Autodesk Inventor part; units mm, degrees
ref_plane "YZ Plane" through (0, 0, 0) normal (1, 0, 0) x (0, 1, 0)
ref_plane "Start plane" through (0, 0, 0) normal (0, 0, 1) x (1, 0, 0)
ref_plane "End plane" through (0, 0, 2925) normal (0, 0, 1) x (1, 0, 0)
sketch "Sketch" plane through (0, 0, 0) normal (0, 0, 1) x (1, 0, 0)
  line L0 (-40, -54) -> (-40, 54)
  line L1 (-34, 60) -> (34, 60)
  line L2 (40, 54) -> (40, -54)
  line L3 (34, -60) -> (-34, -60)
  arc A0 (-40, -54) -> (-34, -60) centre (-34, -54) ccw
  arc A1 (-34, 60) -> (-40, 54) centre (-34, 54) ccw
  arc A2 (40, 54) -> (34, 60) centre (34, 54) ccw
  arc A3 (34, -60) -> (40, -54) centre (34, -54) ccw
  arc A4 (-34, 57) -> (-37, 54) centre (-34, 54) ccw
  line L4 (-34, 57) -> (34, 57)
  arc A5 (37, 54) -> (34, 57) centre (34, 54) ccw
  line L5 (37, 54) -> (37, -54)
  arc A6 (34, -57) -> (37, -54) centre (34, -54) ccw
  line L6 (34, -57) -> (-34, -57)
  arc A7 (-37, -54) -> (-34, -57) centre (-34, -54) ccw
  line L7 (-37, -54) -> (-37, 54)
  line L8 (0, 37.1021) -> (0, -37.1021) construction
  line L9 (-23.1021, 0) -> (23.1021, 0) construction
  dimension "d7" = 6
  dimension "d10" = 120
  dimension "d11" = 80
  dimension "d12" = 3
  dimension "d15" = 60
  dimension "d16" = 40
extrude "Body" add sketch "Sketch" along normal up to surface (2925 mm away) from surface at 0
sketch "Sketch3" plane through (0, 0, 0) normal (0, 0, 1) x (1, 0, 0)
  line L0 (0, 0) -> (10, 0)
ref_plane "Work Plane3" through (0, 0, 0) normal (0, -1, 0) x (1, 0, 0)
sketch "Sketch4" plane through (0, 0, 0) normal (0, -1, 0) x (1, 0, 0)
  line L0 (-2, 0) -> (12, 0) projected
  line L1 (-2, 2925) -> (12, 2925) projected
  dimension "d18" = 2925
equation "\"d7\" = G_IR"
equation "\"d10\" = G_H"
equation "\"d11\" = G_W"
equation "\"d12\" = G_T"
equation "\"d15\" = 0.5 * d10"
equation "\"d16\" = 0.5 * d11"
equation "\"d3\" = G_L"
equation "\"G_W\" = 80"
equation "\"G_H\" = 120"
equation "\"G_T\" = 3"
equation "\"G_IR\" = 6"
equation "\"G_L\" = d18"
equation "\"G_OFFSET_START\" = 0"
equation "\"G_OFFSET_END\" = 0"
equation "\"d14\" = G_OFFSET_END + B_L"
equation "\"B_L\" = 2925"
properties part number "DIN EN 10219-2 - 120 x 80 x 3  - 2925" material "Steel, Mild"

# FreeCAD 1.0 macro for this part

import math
import FreeCAD as App
import Part
import Sketcher

V = App.Vector
Q = App.Units.Quantity

doc = App.newDocument("Part")
params = doc.addObject("Spreadsheet::Sheet", "Params")
for row, (alias, value) in enumerate([
    ("sketch1_radius", "6 mm"),
    ("sketch1_radius2", "3 mm"),
    ("pad1_length", "2925 mm"),
], start=1):
    params.set(f"A{row}", alias)
    params.set(f"B{row}", "=" + value)
    params.setAlias(f"B{row}", alias)

body = doc.addObject("PartDesign::Body", "Body")

# Sketch on XY plane
sketch1 = body.newObject("Sketcher::SketchObject", "Sketch")
sketch1.AttachmentSupport = (doc.getObject("XY_Plane"), [""])
sketch1.MapMode = "FlatFace"
sketch1.addGeometry(Part.LineSegment(V(-40, 54, 0), V(-40, -54, 0)), False)
sketch1.addGeometry(Part.ArcOfCircle(Part.Circle(V(-34, -54, 0), V(0, 0, 1), 6), math.radians(180), math.radians(270)), False)
sketch1.addGeometry(Part.LineSegment(V(-34, -60, 0), V(34, -60, 0)), False)
sketch1.addGeometry(Part.ArcOfCircle(Part.Circle(V(34, -54, 0), V(0, 0, 1), 6), math.radians(-90), math.radians(0)), False)
sketch1.addGeometry(Part.LineSegment(V(40, -54, 0), V(40, 54, 0)), False)
sketch1.addGeometry(Part.ArcOfCircle(Part.Circle(V(34, 54, 0), V(0, 0, 1), 6), math.radians(0), math.radians(90)), False)
sketch1.addGeometry(Part.LineSegment(V(34, 60, 0), V(-34, 60, 0)), False)
sketch1.addGeometry(Part.ArcOfCircle(Part.Circle(V(-34, 54, 0), V(0, 0, 1), 6), math.radians(90), math.radians(180)), False)
sketch1.addGeometry(Part.ArcOfCircle(Part.Circle(V(-34, 54, 0), V(0, 0, 1), 3), math.radians(90), math.radians(180)), False)
sketch1.addGeometry(Part.LineSegment(V(-34, 57, 0), V(34, 57, 0)), False)
sketch1.addGeometry(Part.ArcOfCircle(Part.Circle(V(34, 54, 0), V(0, 0, 1), 3), math.radians(0), math.radians(90)), False)
sketch1.addGeometry(Part.LineSegment(V(37, 54, 0), V(37, -54, 0)), False)
sketch1.addGeometry(Part.ArcOfCircle(Part.Circle(V(34, -54, 0), V(0, 0, 1), 3), math.radians(-90), math.radians(0)), False)
sketch1.addGeometry(Part.LineSegment(V(34, -57, 0), V(-34, -57, 0)), False)
sketch1.addGeometry(Part.ArcOfCircle(Part.Circle(V(-34, -54, 0), V(0, 0, 1), 3), math.radians(180), math.radians(270)), False)
sketch1.addGeometry(Part.LineSegment(V(-37, -54, 0), V(-37, 54, 0)), False)
sketch1.addConstraint(Sketcher.Constraint("Tangent", 0, 2, 1, 1))
sketch1.addConstraint(Sketcher.Constraint("Tangent", 1, 2, 2, 1))
sketch1.addConstraint(Sketcher.Constraint("Tangent", 2, 2, 3, 1))
sketch1.addConstraint(Sketcher.Constraint("Tangent", 3, 2, 4, 1))
sketch1.addConstraint(Sketcher.Constraint("Tangent", 4, 2, 5, 1))
sketch1.addConstraint(Sketcher.Constraint("Tangent", 5, 2, 6, 1))
sketch1.addConstraint(Sketcher.Constraint("Tangent", 6, 2, 7, 1))
sketch1.addConstraint(Sketcher.Constraint("Tangent", 7, 2, 0, 1))
sketch1.addConstraint(Sketcher.Constraint("Tangent", 8, 1, 9, 1))
sketch1.addConstraint(Sketcher.Constraint("Tangent", 9, 2, 10, 2))
sketch1.addConstraint(Sketcher.Constraint("Tangent", 10, 1, 11, 1))
sketch1.addConstraint(Sketcher.Constraint("Tangent", 11, 2, 12, 2))
sketch1.addConstraint(Sketcher.Constraint("Tangent", 12, 1, 13, 1))
sketch1.addConstraint(Sketcher.Constraint("Tangent", 13, 2, 14, 2))
sketch1.addConstraint(Sketcher.Constraint("Tangent", 14, 1, 15, 1))
sketch1.addConstraint(Sketcher.Constraint("Tangent", 15, 2, 8, 2))
sketch1.addConstraint(Sketcher.Constraint("Vertical", 0))
sketch1.addConstraint(Sketcher.Constraint("Horizontal", 2))
sketch1.addConstraint(Sketcher.Constraint("Vertical", 4))
sketch1.addConstraint(Sketcher.Constraint("Horizontal", 6))
sketch1.addConstraint(Sketcher.Constraint("Horizontal", 9))
sketch1.addConstraint(Sketcher.Constraint("Vertical", 11))
sketch1.addConstraint(Sketcher.Constraint("Horizontal", 13))
sketch1.addConstraint(Sketcher.Constraint("Vertical", 15))
sketch1.addConstraint(Sketcher.Constraint("Coincident", 8, 3, 7, 3))
sketch1.addConstraint(Sketcher.Constraint("Coincident", 10, 3, 5, 3))
sketch1.addConstraint(Sketcher.Constraint("Coincident", 12, 3, 3, 3))
sketch1.addConstraint(Sketcher.Constraint("Equal", 1, 3))
sketch1.addConstraint(Sketcher.Constraint("Equal", 3, 5))
sketch1.addConstraint(Sketcher.Constraint("Equal", 5, 7))
sketch1.addConstraint(Sketcher.Constraint("Equal", 12, 14))
sketch1.addConstraint(Sketcher.Constraint("Symmetric", 1, 3, 5, 3, -1, 1))
sketch1.addConstraint(Sketcher.Constraint("Radius", 1, Q("6 mm")))
sketch1.addConstraint(Sketcher.Constraint("Radius", 8, Q("3 mm")))
sketch1.addConstraint(Sketcher.Constraint("DistanceX", 0, 2, -1, 1, Q("40 mm")))
sketch1.addConstraint(Sketcher.Constraint("DistanceY", 1, 2, -1, 1, Q("60 mm")))
sketch1.setExpression("Constraints[32]", "Params.sketch1_radius")
sketch1.setExpression("Constraints[33]", "Params.sketch1_radius2")
pad1 = body.newObject("PartDesign::Pad", "Pad")
pad1.Profile = sketch1
pad1.setExpression("Length", "Params.pad1_length")

doc.recompute()
